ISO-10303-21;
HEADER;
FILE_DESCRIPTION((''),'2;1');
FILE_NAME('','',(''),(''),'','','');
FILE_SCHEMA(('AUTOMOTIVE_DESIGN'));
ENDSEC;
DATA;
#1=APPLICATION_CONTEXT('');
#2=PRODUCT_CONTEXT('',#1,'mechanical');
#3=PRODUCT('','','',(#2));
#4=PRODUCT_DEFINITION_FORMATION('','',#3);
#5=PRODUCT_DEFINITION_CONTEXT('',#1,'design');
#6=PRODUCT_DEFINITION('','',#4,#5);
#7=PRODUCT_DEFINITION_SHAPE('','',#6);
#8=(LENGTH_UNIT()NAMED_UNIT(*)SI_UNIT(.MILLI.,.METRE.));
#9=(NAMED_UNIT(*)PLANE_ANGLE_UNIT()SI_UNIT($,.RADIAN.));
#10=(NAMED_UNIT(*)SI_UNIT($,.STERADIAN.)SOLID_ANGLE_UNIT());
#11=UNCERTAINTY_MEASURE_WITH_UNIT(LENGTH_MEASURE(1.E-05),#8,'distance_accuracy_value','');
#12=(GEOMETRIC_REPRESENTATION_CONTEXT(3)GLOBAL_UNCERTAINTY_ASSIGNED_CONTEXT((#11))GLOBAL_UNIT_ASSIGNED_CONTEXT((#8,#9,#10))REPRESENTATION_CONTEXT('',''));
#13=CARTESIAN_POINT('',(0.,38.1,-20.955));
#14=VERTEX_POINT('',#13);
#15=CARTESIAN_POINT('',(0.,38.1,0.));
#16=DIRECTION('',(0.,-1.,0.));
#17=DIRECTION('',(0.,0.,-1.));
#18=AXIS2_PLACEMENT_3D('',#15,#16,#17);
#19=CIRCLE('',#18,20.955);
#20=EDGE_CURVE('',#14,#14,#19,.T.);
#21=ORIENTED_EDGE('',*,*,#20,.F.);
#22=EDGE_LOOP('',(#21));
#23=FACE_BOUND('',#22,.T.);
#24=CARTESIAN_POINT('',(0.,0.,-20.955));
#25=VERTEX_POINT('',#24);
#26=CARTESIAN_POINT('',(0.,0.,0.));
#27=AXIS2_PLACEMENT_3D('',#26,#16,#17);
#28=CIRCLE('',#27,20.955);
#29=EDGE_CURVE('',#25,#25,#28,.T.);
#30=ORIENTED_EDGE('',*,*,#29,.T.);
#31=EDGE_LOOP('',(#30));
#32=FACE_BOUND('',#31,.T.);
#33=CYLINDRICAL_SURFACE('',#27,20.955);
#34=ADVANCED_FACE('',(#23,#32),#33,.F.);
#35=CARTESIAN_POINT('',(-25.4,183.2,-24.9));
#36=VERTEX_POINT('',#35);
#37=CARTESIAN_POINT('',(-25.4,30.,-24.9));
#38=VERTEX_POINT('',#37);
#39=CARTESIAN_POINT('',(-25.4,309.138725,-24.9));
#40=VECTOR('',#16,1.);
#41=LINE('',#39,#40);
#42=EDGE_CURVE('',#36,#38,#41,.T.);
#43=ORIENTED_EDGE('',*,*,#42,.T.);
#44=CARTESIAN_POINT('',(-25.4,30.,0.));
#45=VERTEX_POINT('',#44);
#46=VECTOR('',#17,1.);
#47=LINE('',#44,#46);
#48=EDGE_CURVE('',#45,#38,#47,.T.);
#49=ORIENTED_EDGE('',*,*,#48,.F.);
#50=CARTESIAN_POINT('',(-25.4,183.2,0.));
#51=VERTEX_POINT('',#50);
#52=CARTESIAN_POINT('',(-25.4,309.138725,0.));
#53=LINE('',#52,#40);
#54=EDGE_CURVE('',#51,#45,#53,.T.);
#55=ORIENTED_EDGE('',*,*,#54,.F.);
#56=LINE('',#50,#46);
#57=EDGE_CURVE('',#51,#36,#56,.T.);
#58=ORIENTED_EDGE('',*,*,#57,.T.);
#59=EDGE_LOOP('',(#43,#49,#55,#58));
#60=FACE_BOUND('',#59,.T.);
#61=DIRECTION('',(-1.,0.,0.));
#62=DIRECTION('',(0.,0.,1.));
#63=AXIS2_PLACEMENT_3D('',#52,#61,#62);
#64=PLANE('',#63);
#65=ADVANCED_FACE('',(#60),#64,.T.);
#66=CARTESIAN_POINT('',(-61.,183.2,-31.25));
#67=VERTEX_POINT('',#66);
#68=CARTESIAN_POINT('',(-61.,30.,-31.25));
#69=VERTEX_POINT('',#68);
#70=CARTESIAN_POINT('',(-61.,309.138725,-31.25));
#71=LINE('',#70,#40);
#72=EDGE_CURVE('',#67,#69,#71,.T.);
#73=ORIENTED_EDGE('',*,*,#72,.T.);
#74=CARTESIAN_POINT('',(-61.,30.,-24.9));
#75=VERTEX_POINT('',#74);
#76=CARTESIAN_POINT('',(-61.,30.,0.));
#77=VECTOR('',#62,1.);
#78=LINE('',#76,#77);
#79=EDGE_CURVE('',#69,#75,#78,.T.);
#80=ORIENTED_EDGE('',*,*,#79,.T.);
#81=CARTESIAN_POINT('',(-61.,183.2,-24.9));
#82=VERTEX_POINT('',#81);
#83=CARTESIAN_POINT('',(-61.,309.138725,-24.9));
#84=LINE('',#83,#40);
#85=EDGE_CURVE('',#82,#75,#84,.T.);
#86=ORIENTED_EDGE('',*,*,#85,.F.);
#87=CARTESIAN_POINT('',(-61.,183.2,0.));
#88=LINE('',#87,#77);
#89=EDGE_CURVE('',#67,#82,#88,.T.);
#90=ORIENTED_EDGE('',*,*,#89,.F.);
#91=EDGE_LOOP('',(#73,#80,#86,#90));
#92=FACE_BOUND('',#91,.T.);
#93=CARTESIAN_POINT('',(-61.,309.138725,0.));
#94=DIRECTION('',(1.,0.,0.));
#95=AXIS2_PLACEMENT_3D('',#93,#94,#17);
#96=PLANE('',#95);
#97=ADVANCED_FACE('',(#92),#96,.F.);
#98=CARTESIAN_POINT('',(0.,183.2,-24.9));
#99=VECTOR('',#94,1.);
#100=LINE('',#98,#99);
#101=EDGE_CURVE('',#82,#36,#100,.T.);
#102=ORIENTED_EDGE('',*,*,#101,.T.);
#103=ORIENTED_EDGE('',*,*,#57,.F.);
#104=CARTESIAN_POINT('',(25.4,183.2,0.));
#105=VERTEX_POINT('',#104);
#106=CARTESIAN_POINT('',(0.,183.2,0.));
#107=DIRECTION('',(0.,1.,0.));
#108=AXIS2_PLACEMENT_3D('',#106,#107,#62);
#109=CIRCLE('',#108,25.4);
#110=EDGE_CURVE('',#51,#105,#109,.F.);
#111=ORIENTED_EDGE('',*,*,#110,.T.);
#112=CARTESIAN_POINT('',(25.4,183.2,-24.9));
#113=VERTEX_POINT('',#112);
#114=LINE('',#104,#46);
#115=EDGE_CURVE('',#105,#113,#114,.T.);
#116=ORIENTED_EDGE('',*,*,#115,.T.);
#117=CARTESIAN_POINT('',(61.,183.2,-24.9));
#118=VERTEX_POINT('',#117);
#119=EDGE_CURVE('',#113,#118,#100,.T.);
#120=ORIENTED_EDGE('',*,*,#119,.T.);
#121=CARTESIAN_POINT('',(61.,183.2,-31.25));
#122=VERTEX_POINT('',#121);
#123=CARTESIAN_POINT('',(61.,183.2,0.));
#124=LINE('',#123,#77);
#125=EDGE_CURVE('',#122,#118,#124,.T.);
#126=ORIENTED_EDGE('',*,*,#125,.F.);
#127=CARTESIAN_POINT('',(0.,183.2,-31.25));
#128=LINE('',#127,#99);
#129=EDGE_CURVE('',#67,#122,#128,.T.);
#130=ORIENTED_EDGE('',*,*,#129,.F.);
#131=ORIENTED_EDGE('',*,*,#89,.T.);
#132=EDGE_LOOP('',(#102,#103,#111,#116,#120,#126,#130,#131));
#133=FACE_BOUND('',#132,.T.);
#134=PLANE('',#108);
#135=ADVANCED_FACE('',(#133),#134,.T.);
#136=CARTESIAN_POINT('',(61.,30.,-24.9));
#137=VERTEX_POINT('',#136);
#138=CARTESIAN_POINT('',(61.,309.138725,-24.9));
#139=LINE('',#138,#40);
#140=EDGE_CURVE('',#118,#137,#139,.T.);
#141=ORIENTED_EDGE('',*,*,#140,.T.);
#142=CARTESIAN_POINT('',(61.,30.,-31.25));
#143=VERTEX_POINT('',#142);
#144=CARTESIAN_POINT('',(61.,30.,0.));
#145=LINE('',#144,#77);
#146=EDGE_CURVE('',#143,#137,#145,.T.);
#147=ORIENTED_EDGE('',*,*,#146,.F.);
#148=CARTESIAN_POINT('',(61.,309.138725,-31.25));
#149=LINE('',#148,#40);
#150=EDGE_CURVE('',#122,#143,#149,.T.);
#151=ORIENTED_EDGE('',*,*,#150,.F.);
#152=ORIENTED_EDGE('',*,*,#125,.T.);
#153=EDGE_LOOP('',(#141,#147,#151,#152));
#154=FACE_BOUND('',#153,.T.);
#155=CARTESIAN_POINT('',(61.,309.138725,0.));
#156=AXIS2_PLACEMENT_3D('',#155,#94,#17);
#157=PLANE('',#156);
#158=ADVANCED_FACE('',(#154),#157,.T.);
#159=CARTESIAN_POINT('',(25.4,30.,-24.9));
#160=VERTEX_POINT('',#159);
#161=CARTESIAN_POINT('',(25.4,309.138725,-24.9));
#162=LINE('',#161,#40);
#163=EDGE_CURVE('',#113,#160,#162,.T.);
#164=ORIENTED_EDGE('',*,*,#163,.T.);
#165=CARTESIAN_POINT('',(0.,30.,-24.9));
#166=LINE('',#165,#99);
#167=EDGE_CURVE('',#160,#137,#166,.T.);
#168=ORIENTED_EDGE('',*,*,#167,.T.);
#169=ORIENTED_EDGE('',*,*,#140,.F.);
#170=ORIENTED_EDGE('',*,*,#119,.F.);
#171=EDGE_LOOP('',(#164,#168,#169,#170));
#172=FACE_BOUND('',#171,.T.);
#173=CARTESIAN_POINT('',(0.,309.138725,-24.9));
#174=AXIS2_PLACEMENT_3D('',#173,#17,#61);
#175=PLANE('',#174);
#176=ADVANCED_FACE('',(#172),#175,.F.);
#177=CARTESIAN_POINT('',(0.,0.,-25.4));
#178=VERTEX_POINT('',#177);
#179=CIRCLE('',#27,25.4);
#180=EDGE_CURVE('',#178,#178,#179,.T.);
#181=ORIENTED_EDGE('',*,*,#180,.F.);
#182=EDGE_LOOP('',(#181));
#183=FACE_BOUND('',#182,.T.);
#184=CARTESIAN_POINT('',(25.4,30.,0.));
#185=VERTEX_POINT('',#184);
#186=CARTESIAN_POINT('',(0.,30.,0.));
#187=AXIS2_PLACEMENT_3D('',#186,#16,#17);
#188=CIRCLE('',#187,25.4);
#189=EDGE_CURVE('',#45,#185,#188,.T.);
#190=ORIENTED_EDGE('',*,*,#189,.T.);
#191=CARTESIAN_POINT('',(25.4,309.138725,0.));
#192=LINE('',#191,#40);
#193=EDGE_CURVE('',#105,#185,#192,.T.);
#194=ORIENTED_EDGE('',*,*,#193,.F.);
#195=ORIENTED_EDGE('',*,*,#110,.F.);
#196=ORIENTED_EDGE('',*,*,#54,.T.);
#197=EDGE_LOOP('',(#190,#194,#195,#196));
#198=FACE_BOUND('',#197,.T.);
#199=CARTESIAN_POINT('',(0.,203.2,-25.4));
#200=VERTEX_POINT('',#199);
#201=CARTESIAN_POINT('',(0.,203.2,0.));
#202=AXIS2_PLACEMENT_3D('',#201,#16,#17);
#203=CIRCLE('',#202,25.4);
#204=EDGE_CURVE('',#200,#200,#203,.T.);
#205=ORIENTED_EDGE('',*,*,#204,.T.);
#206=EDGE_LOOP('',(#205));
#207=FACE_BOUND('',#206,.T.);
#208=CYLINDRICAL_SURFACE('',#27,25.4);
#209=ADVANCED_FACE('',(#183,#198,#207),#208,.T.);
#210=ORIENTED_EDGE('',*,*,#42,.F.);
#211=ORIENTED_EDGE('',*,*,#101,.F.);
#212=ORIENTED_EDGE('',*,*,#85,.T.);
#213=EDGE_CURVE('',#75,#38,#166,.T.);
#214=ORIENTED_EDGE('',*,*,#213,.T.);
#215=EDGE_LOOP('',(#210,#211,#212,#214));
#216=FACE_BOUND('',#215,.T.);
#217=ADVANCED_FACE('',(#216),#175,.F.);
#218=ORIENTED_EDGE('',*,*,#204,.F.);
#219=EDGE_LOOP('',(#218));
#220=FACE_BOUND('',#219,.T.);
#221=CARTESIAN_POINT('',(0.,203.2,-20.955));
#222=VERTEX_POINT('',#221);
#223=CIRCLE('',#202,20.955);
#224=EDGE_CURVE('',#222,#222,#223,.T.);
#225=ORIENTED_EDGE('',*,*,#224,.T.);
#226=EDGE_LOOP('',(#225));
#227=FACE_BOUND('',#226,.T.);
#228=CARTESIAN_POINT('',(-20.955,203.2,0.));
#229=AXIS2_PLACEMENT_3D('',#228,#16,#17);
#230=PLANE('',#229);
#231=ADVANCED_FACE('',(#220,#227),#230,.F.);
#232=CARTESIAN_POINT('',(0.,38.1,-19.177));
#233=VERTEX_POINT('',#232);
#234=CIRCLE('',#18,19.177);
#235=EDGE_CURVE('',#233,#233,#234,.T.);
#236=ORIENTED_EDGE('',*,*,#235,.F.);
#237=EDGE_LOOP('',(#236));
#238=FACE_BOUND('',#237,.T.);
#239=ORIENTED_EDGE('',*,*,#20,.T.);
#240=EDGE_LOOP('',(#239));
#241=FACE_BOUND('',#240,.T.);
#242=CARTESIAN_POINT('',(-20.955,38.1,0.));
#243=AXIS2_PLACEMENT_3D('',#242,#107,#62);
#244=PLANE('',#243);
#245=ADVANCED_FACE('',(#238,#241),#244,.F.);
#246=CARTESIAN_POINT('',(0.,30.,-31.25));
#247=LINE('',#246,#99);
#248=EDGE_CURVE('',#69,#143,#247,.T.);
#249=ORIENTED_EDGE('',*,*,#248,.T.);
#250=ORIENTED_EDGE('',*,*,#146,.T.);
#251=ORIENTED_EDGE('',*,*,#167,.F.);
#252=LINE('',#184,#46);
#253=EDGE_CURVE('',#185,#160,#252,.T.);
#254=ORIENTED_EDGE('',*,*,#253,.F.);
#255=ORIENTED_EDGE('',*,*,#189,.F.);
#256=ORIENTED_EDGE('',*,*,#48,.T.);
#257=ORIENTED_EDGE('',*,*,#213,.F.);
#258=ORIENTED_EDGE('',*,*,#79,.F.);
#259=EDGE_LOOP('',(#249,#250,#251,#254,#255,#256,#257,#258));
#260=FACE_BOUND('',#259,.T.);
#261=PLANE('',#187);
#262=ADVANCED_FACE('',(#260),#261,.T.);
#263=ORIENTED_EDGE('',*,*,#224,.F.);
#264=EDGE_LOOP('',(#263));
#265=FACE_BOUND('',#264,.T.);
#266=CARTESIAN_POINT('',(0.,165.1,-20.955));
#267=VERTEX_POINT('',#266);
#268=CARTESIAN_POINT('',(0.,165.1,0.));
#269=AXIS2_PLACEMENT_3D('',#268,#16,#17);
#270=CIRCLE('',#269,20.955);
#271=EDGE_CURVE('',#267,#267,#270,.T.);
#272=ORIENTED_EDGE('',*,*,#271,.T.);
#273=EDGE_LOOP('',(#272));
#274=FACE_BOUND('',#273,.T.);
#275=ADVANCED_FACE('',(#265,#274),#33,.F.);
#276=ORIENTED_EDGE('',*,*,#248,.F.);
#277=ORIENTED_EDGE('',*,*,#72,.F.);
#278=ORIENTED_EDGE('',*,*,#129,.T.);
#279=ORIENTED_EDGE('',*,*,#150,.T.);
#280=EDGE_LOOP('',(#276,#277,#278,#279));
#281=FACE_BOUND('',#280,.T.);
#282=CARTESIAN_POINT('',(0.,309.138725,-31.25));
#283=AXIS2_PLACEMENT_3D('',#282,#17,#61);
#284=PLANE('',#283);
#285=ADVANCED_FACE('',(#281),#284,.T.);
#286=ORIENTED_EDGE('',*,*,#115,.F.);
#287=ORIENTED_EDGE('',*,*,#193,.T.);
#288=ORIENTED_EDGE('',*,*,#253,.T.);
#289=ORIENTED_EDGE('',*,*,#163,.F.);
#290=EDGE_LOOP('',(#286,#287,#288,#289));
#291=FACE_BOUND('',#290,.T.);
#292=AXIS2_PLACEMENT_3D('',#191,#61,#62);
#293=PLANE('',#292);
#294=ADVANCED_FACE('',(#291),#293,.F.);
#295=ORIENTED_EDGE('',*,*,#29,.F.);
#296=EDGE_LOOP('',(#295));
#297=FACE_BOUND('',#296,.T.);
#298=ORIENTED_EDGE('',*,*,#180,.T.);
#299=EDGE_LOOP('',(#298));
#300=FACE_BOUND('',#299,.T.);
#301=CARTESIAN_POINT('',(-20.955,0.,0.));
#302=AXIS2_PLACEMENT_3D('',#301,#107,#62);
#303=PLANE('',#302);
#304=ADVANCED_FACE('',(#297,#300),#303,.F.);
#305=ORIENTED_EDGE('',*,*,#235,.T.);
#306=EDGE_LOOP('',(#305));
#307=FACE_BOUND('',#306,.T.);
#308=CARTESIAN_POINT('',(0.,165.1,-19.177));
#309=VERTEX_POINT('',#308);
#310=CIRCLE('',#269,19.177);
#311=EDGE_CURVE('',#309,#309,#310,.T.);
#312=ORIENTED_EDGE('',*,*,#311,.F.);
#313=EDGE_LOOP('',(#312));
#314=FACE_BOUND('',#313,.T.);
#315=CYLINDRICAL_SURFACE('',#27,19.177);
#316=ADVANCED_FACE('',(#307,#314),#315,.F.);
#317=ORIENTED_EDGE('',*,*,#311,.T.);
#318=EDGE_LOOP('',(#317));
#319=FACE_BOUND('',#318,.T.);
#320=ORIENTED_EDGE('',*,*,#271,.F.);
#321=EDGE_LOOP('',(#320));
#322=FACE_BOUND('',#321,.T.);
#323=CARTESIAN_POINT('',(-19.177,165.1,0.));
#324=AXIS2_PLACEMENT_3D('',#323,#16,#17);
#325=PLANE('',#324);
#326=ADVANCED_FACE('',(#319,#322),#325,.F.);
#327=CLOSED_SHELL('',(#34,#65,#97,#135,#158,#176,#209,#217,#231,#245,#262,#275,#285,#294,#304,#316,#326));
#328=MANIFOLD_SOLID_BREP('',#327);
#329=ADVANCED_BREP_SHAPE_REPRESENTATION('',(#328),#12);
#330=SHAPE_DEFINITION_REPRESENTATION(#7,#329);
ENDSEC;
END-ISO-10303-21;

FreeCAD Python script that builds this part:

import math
import FreeCAD as App
import Part
import Sketcher
Q = App.Units.Quantity


def add_polygon(sketch, points):
    """Adds a closed chain of lines whose ends are joined by coincident constraints."""
    first, n = sketch.GeometryCount, len(points)
    for a, b in zip(points, points[1:] + points[:1]):
        sketch.addGeometry(Part.LineSegment(App.Vector(*a, 0), App.Vector(*b, 0)), False)
    for i in range(n):
        sketch.addConstraint(Sketcher.Constraint("Coincident", first + i, 2, first + (i + 1) % n, 1))

doc = App.newDocument("Part")
body = doc.addObject("PartDesign::Body", "Body")

# Sketch on XY plane
sketch1 = body.newObject("Sketcher::SketchObject", "Sketch")
sketch1.AttachmentSupport = (doc.getObject("XY_Plane"), [""])
sketch1.MapMode = "FlatFace"
add_polygon(sketch1, [(-25.4, 203.2), (-25.4, 0), (-21, 0), (-21, 38.1), (-19.2, 38.1), (-19.2, 165.1), (-21, 165.1), (-21, 203.2)])  # lines 0-7
sketch1.addConstraint([
    Sketcher.Constraint("Vertical", 0),
    Sketcher.Constraint("Horizontal", 1),
    Sketcher.Constraint("Vertical", 2),
    Sketcher.Constraint("Horizontal", 3),
    Sketcher.Constraint("Vertical", 4),
    Sketcher.Constraint("Horizontal", 5),
    Sketcher.Constraint("Vertical", 6),
    Sketcher.Constraint("Horizontal", 7),
    Sketcher.Constraint("PointOnObject", 0, 2, -1),
    Sketcher.Constraint("Vertical", 2, 2, 5, 2),
    Sketcher.Constraint("Equal", 2, 6),
    Sketcher.Constraint("DistanceY", 0, 2, 0, 1, Q("8 in")),
    Sketcher.Constraint("DistanceY", 4, 1, 4, 2, Q("5 in")),
    Sketcher.Constraint("DistanceX", 0, 2, -1, 1, Q("1 in")),
    Sketcher.Constraint("DistanceX", 3, 1, 3, 2, Q("0.07 in")),
    Sketcher.Constraint("DistanceX", 1, 1, 1, 2, Q("0.175 in")),
])
revolution = body.newObject("PartDesign::Revolution", "Revolution")
revolution.Profile = sketch1
revolution.ReferenceAxis = (sketch1, ["V_Axis"])
revolution.Angle = 360

# Sketch on XZ plane
sketch2 = body.newObject("Sketcher::SketchObject", "Sketch001")
sketch2.AttachmentSupport = (doc.getObject("XZ_Plane"), [""])
sketch2.MapMode = "FlatFace"
sketch2.AttachmentOffset = App.Placement(App.Vector(0, 0, -183.2), App.Rotation())
sketch2.addGeometry([
    Part.LineSegment(App.Vector(-61, -25, 0), App.Vector(-61, -31, 0)),  # 0
    Part.LineSegment(App.Vector(-61, -31, 0), App.Vector(61, -31, 0)),  # 1
    Part.LineSegment(App.Vector(61, -31, 0), App.Vector(61, -25, 0)),  # 2
    Part.LineSegment(App.Vector(61, -25, 0), App.Vector(25, -25, 0)),  # 3
    Part.LineSegment(App.Vector(25, -25, 0), App.Vector(25, 0, 0)),  # 4
    Part.ArcOfCircle(Part.Circle(App.Vector(0, 0, 0), App.Vector(0, 0, 1), 25), math.radians(180), math.radians(360)),  # 5
    Part.LineSegment(App.Vector(-25, 0, 0), App.Vector(-25, -25, 0)),  # 6
    Part.LineSegment(App.Vector(-25, -25, 0), App.Vector(-61, -25, 0)),  # 7
], False)
sketch2.addConstraint([
    Sketcher.Constraint("Coincident", 0, 2, 1, 1),
    Sketcher.Constraint("Coincident", 1, 2, 2, 1),
    Sketcher.Constraint("Coincident", 2, 2, 3, 1),
    Sketcher.Constraint("Coincident", 3, 2, 4, 1),
    Sketcher.Constraint("Tangent", 4, 2, 5, 2),
    Sketcher.Constraint("Tangent", 5, 1, 6, 1),
    Sketcher.Constraint("Coincident", 6, 2, 7, 1),
    Sketcher.Constraint("Coincident", 7, 2, 0, 1),
    Sketcher.Constraint("Vertical", 0),
    Sketcher.Constraint("Horizontal", 1),
    Sketcher.Constraint("Vertical", 2),
    Sketcher.Constraint("Horizontal", 3),
    Sketcher.Constraint("Vertical", 4),
    Sketcher.Constraint("Vertical", 6),
    Sketcher.Constraint("Horizontal", 7),
    Sketcher.Constraint("Coincident", 5, 3, -1, 1),
    Sketcher.Constraint("Symmetric", 2, 2, 7, 2, -2),
    Sketcher.Constraint("Radius", 5, Q("1 in")),
    Sketcher.Constraint("DistanceY", 0, 2, 0, 1, Q("0.25 in")),
    Sketcher.Constraint("DistanceX", 1, 1, 1, 2, 122.0),
    Sketcher.Constraint("DistanceY", 4, 1, 4, 2, 24.9),
])
pad1 = body.newObject("PartDesign::Pad", "Pad")
pad1.Profile = sketch2
pad1.Length = 153.2

doc.recompute()
